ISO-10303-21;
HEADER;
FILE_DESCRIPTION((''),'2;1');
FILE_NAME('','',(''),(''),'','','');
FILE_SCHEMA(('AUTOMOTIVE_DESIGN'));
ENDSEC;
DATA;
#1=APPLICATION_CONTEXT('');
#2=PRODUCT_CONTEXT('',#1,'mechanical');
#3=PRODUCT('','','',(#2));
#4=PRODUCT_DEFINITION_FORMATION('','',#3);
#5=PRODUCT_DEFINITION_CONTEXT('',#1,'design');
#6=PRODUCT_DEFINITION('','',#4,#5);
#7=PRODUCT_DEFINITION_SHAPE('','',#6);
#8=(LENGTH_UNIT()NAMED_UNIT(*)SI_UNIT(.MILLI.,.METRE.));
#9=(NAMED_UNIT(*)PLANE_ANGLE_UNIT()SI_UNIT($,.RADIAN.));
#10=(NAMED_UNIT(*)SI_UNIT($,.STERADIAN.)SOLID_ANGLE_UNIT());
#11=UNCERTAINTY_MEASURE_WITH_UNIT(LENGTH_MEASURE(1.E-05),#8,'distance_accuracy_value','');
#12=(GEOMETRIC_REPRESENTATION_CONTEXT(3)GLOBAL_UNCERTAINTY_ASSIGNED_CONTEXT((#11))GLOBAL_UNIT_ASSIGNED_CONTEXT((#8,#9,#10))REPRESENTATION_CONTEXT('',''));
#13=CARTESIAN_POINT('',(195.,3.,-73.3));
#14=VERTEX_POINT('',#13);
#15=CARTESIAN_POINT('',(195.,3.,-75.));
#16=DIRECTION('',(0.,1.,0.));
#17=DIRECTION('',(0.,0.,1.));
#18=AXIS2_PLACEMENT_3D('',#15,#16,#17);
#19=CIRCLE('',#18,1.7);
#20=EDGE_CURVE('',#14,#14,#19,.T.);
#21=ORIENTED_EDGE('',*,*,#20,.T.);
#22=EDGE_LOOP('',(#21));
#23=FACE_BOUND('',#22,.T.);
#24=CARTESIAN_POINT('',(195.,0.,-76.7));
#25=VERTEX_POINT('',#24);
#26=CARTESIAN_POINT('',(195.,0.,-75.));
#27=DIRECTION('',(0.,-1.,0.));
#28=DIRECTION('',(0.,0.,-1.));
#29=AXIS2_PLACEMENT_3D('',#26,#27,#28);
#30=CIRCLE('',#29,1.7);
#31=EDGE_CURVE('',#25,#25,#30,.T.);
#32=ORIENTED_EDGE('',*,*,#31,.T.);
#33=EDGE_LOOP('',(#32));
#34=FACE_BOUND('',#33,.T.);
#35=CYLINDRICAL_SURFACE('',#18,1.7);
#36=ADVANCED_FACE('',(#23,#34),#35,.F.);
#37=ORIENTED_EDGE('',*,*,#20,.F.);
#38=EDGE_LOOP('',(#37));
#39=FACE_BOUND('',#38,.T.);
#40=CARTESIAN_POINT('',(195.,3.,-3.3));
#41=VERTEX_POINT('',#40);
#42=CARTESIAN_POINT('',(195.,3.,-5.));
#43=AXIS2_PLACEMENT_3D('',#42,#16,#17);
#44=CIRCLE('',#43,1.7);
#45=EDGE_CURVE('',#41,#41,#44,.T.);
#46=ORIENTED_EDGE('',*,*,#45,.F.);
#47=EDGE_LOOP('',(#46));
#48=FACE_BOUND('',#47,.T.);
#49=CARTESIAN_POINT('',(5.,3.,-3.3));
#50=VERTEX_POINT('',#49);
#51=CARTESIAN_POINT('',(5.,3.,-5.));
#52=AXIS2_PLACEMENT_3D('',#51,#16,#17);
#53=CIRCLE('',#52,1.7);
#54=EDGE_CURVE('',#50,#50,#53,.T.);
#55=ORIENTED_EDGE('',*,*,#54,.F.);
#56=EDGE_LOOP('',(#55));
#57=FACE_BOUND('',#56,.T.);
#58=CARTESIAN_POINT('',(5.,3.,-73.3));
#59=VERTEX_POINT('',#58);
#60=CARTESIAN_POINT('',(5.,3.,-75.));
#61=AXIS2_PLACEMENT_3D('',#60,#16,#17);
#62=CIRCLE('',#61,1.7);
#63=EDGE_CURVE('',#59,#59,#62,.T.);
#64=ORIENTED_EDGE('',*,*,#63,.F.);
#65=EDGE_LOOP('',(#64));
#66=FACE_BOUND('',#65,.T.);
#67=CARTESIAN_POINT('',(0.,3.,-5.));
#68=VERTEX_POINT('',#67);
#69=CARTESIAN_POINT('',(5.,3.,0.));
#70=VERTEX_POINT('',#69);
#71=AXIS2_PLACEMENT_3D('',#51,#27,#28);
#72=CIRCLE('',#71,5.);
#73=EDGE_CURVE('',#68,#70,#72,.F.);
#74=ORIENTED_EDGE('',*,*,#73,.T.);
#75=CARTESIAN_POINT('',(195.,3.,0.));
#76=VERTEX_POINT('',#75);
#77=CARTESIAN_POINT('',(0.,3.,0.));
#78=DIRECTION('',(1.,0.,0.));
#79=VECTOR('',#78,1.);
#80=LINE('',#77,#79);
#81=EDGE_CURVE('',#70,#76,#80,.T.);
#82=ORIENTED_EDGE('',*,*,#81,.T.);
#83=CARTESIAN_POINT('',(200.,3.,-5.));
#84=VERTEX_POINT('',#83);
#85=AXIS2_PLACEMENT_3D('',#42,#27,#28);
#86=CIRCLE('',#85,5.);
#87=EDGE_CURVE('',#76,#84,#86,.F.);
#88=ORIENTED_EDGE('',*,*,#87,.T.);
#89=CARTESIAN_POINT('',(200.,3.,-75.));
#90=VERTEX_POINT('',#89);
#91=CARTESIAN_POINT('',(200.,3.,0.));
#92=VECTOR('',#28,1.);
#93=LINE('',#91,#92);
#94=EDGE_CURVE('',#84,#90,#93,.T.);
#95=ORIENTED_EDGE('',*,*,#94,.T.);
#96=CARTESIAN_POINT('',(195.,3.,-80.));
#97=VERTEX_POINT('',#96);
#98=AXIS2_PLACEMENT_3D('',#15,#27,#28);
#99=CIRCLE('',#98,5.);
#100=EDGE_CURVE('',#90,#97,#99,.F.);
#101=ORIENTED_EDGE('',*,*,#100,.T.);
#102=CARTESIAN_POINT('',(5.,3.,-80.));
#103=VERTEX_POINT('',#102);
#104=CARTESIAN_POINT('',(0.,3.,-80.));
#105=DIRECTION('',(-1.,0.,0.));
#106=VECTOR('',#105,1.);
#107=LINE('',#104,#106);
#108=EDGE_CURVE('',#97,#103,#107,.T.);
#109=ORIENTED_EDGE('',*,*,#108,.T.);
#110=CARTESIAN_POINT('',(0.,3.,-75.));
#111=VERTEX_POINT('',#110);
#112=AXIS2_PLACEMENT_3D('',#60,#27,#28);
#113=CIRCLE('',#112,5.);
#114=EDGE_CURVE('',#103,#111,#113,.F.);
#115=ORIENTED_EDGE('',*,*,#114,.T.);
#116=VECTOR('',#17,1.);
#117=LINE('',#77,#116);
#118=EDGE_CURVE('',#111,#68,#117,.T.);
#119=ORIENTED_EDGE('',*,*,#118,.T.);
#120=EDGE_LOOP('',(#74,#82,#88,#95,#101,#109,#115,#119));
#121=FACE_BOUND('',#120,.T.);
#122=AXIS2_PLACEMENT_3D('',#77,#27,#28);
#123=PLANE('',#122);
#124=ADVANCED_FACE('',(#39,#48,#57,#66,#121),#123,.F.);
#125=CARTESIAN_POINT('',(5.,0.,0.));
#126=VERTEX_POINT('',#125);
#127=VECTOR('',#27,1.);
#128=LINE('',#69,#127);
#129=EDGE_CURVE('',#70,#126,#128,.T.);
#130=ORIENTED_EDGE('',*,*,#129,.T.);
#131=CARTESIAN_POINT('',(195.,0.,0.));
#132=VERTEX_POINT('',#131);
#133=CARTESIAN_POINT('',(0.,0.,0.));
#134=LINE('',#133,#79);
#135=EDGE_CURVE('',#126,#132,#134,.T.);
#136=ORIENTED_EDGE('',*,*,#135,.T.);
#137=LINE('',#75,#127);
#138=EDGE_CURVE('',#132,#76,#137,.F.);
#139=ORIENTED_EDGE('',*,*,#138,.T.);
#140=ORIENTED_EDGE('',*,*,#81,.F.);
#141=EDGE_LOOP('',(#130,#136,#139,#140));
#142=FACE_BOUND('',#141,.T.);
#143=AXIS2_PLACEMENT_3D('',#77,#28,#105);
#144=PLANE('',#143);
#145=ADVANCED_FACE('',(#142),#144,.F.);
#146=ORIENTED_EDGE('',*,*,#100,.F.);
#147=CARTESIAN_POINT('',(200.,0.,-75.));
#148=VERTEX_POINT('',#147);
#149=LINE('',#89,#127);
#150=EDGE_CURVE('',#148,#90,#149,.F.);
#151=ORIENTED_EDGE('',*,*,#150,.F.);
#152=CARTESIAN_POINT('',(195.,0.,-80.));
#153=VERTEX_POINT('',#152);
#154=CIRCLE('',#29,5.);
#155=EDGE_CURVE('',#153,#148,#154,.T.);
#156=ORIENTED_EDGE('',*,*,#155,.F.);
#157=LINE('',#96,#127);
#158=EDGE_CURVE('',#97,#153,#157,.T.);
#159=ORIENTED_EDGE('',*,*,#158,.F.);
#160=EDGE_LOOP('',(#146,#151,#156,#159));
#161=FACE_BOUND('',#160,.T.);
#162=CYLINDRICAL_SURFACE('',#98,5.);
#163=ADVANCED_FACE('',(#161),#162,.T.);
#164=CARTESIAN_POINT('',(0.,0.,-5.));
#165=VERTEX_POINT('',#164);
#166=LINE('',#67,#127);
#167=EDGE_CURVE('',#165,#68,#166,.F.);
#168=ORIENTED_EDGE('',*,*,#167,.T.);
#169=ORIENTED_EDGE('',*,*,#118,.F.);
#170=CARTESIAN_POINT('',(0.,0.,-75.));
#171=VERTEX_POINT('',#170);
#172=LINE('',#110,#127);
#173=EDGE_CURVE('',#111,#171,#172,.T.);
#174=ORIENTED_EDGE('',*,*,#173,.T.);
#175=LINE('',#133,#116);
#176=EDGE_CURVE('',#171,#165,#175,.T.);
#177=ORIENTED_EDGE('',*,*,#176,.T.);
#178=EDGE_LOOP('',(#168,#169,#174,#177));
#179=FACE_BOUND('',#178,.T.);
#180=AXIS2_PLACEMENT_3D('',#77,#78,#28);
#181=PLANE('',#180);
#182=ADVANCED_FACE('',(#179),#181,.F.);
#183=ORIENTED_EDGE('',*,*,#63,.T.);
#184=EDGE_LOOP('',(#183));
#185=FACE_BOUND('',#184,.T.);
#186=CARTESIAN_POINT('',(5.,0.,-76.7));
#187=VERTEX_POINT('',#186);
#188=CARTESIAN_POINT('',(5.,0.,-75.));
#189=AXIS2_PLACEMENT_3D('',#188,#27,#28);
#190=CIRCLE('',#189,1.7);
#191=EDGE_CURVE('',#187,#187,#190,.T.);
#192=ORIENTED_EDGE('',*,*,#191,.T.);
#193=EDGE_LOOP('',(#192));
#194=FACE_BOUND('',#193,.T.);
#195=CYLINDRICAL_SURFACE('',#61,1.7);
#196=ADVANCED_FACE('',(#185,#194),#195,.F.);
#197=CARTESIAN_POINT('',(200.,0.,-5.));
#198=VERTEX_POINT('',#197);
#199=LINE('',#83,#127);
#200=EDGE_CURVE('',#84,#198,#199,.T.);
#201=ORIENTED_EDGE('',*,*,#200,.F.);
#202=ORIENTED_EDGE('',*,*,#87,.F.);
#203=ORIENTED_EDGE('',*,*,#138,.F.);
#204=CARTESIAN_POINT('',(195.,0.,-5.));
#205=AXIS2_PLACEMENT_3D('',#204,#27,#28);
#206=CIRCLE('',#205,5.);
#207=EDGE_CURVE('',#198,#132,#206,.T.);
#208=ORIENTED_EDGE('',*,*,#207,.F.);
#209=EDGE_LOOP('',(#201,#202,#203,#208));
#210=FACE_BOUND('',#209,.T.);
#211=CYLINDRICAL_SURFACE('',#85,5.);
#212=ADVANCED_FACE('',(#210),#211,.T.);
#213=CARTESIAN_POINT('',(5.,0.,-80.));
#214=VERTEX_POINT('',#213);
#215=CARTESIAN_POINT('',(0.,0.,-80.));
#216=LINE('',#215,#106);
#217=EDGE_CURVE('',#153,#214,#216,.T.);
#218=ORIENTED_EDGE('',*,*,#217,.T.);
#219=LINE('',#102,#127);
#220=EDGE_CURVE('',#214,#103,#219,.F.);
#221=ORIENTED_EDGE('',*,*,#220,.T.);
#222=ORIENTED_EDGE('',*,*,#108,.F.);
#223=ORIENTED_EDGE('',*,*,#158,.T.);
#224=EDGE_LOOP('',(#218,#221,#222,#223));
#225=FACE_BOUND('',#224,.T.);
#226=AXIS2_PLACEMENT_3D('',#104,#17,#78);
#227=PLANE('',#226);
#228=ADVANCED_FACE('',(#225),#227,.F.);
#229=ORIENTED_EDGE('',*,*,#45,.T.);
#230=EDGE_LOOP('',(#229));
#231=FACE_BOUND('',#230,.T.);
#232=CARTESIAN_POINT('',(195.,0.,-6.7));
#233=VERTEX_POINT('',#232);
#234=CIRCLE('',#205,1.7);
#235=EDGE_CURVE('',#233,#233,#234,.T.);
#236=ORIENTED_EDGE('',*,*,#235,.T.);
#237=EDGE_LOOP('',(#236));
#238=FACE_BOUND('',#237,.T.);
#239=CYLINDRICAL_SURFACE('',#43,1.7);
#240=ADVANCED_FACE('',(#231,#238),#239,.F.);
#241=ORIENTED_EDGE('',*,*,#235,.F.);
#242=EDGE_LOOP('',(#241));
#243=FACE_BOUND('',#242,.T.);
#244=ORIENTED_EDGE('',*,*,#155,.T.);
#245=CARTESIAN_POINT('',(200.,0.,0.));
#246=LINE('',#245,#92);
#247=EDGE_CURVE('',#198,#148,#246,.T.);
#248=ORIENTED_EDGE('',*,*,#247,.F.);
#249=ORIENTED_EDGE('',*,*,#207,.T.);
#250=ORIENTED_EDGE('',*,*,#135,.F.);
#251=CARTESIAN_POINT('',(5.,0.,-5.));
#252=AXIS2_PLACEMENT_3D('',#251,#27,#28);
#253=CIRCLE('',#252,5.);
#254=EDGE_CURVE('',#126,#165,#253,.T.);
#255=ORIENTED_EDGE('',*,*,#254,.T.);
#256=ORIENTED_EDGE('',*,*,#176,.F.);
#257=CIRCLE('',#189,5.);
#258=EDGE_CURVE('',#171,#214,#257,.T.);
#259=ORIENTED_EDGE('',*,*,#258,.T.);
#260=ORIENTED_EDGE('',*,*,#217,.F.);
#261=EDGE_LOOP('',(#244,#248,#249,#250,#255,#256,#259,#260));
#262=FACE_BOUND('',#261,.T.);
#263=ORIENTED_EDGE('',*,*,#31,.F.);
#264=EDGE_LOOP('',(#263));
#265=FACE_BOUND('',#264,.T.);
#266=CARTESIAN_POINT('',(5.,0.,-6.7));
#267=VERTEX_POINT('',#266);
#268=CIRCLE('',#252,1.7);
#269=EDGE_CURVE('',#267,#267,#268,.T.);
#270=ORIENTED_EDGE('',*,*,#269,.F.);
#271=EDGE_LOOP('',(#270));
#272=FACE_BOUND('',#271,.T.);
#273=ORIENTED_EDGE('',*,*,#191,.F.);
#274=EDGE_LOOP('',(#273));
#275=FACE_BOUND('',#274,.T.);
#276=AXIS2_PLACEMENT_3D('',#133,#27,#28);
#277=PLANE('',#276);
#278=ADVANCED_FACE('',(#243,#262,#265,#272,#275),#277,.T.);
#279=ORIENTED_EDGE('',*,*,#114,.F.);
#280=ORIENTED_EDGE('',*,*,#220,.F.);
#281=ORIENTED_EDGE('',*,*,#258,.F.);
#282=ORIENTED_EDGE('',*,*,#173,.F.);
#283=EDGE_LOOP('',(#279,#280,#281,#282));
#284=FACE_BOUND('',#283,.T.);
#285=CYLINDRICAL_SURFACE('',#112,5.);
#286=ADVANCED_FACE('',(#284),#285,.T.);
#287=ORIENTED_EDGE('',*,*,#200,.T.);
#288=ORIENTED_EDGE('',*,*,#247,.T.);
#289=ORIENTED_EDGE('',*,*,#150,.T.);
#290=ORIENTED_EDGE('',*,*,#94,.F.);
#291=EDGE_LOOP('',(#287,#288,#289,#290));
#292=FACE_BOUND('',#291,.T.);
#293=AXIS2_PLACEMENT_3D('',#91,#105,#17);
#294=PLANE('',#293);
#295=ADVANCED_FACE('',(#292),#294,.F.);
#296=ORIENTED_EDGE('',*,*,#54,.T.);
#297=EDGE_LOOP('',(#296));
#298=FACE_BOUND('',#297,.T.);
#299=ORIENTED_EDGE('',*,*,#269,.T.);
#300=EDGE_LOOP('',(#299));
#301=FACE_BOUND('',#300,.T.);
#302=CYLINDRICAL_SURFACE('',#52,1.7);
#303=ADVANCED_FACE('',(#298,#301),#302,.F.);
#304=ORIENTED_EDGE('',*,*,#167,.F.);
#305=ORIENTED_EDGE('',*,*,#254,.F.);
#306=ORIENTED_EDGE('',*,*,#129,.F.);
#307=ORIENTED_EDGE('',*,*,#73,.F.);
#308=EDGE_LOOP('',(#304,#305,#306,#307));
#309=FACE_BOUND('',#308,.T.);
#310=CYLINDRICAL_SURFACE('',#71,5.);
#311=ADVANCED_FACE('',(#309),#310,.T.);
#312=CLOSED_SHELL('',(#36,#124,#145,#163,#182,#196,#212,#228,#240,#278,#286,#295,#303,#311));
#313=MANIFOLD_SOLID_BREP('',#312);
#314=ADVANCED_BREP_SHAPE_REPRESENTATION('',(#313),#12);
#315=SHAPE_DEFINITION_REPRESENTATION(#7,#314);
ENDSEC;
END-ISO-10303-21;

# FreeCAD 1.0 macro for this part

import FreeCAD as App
import Part
import Sketcher
from FreeCAD import Vector
Q = App.Units.Quantity


def edges_at(feature, points):
    """Names of the edges that pass closest to the given points."""
    edges = feature.Shape.Edges
    near = lambda p: min(range(len(edges)), key=lambda i: edges[i].distToShape(Part.Vertex(*p))[0])
    return sorted({f"Edge{near(p) + 1}" for p in points})


def add_polygon(sketch, points):
    """Adds a closed chain of lines whose ends are joined by coincident constraints."""
    first, n = sketch.GeometryCount, len(points)
    for a, b in zip(points, points[1:] + points[:1]):
        sketch.addGeometry(Part.LineSegment(App.Vector(*a, 0), App.Vector(*b, 0)), False)
    for i in range(n):
        sketch.addConstraint(Sketcher.Constraint("Coincident", first + i, 2, first + (i + 1) % n, 1))

doc = App.newDocument("Part")
body = doc.addObject("PartDesign::Body", "Body")

# Sketch on XZ plane
sketch1 = body.newObject("Sketcher::SketchObject", "Sketch")
sketch1.AttachmentSupport = (doc.getObject("XZ_Plane"), [""])
sketch1.MapMode = "FlatFace"
add_polygon(sketch1, [(0, -80), (0, 0), (200, 0), (200, -80)])  # lines 0-3
sketch1.addConstraint([
    Sketcher.Constraint("Vertical", 0),
    Sketcher.Constraint("Horizontal", 1),
    Sketcher.Constraint("Vertical", 2),
    Sketcher.Constraint("Horizontal", 3),
    Sketcher.Constraint("Coincident", 0, 2, -1, 1),
    Sketcher.Constraint("DistanceX", 1, 1, 1, 2, Q("200 mm")),
    Sketcher.Constraint("DistanceY", 0, 1, 0, 2, Q("80 mm")),
])
pad1 = body.newObject("PartDesign::Pad", "Pad")
pad1.Profile = sketch1
pad1.Length = 3
pad1.Reversed = True
doc.recompute()

fillet = body.newObject("PartDesign::Fillet", "Fillet")
fillet.Base = (pad1, edges_at(pad1, [
    (0, 1.5, -80),
    (200, 1.5, -80),
    (200, 1.5, 0),
    (0, 1.5, 0),
]))
fillet.Radius = 5

# Sketch on XZ plane
sketch2 = body.newObject("Sketcher::SketchObject", "Sketch001")
sketch2.AttachmentSupport = (doc.getObject("XZ_Plane"), [""])
sketch2.MapMode = "FlatFace"
sketch2.AttachmentOffset = App.Placement(Vector(0, 0, -3), App.Rotation())
sketch2.addGeometry([
    Part.Circle(Vector(5, -75, 0), Vector(0, 0, 1), 1),
    Part.Circle(Vector(195, -75, 0), Vector(0, 0, 1), 1),
    Part.Circle(Vector(195, -5, 0), Vector(0, 0, 1), 1),
    Part.Circle(Vector(5, -5, 0), Vector(0, 0, 1), 1),
], False)
sketch2.addConstraint([
    Sketcher.Constraint("Equal", 0, 1),
    Sketcher.Constraint("Equal", 1, 2),
    Sketcher.Constraint("Equal", 2, 3),
    Sketcher.Constraint("Horizontal", 0, 3, 1, 3),
    Sketcher.Constraint("Horizontal", 2, 3, 3, 3),
    Sketcher.Constraint("Vertical", 1, 3, 2, 3),
    Sketcher.Constraint("Vertical", 0, 3, 3, 3),
    Sketcher.Constraint("Diameter", 0, Q("2 mm")),
    Sketcher.Constraint("DistanceX", -1, 1, 0, 3, Q("5 mm")),
    Sketcher.Constraint("DistanceY", 0, 3, -1, 1, Q("75 mm")),
    Sketcher.Constraint("DistanceX", -1, 1, 1, 3, Q("195 mm")),
    Sketcher.Constraint("DistanceY", 2, 3, -1, 1, Q("5 mm")),
])
pocket1 = body.newObject("PartDesign::Pocket", "Pocket")
pocket1.Profile = sketch2
pocket1.Type = "ThroughAll"
pocket1.Reversed = True

# Sketch on XZ plane
sketch3 = body.newObject("Sketcher::SketchObject", "Sketch002")
sketch3.AttachmentSupport = (doc.getObject("XZ_Plane"), [""])
sketch3.MapMode = "FlatFace"
sketch3.AttachmentOffset = App.Placement(Vector(0, 0, -3), App.Rotation())
sketch3.addGeometry([
    Part.Circle(Vector(195, -5, 0), Vector(0, 0, 1), 1.7),
    Part.Circle(Vector(5, -5, 0), Vector(0, 0, 1), 1.7),
    Part.Circle(Vector(5, -75, 0), Vector(0, 0, 1), 1.7),
    Part.Circle(Vector(195, -75, 0), Vector(0, 0, 1), 1.7),
], False)
sketch3.addConstraint([
    Sketcher.Constraint("Equal", 0, 1),
    Sketcher.Constraint("Equal", 1, 2),
    Sketcher.Constraint("Equal", 2, 3),
    Sketcher.Constraint("Horizontal", 0, 3, 1, 3),
    Sketcher.Constraint("Horizontal", 2, 3, 3, 3),
    Sketcher.Constraint("Vertical", 1, 3, 2, 3),
    Sketcher.Constraint("Vertical", 0, 3, 3, 3),
    Sketcher.Constraint("Diameter", 0, Q("3.4 mm")),
    Sketcher.Constraint("DistanceX", -1, 1, 0, 3, Q("195 mm")),
    Sketcher.Constraint("DistanceY", 0, 3, -1, 1, Q("5 mm")),
    Sketcher.Constraint("DistanceX", -1, 1, 1, 3, Q("5 mm")),
    Sketcher.Constraint("DistanceY", 2, 3, -1, 1, Q("75 mm")),
])
doc.recompute()
hole = body.newObject("PartDesign::Hole", "Hole")
hole.Profile = sketch3
hole.ThreadType = "None"
hole.Diameter = 3.4
hole.DepthType = "Dimension"
hole.Depth = 10
hole.DrillPoint = "Angled"
hole.DrillPointAngle = 118
hole.Reversed = True

doc.recompute()
